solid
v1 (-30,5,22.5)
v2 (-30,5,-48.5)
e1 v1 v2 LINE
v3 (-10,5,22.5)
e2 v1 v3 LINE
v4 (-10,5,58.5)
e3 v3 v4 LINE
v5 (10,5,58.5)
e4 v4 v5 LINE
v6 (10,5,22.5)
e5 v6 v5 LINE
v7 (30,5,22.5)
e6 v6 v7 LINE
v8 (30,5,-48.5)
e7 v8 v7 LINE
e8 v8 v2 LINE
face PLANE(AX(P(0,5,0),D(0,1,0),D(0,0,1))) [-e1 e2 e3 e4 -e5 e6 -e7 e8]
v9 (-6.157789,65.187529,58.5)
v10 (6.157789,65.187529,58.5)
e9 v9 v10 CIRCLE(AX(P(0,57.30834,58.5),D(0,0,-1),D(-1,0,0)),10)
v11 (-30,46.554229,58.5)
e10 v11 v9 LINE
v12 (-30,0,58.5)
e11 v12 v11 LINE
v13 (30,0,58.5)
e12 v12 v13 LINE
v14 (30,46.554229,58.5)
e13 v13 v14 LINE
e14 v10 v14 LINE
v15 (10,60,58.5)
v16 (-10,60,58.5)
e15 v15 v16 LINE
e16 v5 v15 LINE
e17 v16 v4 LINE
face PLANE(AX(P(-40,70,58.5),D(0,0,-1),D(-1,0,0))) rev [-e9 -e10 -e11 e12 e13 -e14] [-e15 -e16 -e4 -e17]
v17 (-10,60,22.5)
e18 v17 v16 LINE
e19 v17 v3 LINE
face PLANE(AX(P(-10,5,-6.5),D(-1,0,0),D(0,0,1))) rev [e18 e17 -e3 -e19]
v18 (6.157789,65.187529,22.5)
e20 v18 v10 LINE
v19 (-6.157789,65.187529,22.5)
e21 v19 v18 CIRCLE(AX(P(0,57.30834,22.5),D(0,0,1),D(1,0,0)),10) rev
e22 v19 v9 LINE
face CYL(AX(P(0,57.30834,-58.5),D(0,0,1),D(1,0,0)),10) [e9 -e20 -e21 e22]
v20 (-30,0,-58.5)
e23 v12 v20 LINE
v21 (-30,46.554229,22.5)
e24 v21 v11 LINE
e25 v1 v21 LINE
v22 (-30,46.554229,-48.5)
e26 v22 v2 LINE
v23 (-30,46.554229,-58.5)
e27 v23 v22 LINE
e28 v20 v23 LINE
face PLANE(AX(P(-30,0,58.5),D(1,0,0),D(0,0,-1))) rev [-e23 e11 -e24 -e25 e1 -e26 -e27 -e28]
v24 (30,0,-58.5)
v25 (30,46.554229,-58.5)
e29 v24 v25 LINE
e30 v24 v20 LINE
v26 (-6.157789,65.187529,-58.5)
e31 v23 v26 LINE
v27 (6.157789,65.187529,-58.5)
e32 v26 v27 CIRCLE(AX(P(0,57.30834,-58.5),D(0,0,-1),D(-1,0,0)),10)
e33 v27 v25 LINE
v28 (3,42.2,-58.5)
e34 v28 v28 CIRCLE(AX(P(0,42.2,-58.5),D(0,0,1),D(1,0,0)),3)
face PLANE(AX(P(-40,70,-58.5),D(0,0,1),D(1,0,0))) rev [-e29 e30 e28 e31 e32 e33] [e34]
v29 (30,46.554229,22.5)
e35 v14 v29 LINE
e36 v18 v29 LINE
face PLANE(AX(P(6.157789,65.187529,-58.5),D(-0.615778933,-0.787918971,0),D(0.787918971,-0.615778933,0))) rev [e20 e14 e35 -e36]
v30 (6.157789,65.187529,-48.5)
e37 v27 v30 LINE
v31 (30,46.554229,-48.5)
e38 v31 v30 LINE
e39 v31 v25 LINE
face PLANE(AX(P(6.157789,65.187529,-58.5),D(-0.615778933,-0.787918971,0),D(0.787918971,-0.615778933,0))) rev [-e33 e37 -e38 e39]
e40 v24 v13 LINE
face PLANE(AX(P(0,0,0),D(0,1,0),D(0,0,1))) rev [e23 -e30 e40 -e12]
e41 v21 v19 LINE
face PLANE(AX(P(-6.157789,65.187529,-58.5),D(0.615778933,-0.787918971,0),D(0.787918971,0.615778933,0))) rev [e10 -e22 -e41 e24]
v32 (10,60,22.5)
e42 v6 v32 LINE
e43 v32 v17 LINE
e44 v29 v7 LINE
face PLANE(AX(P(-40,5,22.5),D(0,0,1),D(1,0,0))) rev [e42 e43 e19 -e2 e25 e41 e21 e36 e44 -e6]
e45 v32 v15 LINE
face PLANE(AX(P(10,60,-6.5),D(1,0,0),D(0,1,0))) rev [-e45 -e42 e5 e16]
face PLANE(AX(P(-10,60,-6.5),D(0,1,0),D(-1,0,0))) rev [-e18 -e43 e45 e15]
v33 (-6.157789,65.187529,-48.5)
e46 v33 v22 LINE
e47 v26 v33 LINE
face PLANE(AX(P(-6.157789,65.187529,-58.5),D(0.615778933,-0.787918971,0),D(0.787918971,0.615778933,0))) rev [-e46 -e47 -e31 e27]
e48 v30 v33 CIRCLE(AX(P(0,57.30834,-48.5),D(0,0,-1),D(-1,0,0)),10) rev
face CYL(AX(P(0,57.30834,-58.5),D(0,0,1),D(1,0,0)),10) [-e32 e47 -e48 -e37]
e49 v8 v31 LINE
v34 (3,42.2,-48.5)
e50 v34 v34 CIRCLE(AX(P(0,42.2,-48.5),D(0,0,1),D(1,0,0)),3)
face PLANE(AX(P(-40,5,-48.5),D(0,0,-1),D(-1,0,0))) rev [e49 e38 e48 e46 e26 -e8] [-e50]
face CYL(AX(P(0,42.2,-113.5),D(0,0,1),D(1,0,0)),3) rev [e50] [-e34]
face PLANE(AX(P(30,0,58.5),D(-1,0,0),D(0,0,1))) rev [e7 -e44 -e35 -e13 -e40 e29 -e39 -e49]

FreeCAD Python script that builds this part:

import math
import FreeCAD as App
import Part
import Sketcher

V = App.Vector

doc = App.newDocument("Part")
body = doc.addObject("PartDesign::Body", "Body")

# Sketch on XZ plane
sketch1 = body.newObject("Sketcher::SketchObject", "Sketch")
sketch1.AttachmentSupport = (doc.getObject("XZ_Plane"), [""])
sketch1.MapMode = "FlatFace"
sketch1.addGeometry([
    Part.LineSegment(V(-40, -58, 0), V(-40, 58, 0)),
    Part.LineSegment(V(-40, 58, 0), V(40, 58, 0)),
    Part.LineSegment(V(40, 58, 0), V(40, -58, 0)),
    Part.LineSegment(V(40, -58, 0), V(-40, -58, 0)),
], False)
sketch1.addConstraint([
    Sketcher.Constraint("Coincident", 0, 2, 1, 1),
    Sketcher.Constraint("Coincident", 1, 2, 2, 1),
    Sketcher.Constraint("Coincident", 2, 2, 3, 1),
    Sketcher.Constraint("Coincident", 3, 2, 0, 1),
    Sketcher.Constraint("Vertical", 0),
    Sketcher.Constraint("Horizontal", 1),
    Sketcher.Constraint("Vertical", 2),
    Sketcher.Constraint("Horizontal", 3),
    Sketcher.Constraint("Symmetric", 0, 2, 2, 2, -1, 1),
    Sketcher.Constraint("DistanceX", 1, 1, 1, 2, 80.0),
    Sketcher.Constraint("DistanceY", 0, 1, 0, 2, 117.0),
])
pad1 = body.newObject("PartDesign::Pad", "Pad")
pad1.Profile = sketch1
pad1.Length = 70
pad1.Reversed = True

# Sketch on XZ plane
sketch2 = body.newObject("Sketcher::SketchObject", "Sketch001")
sketch2.AttachmentSupport = (doc.getObject("XZ_Plane"), [""])
sketch2.MapMode = "FlatFace"
sketch2.AttachmentOffset = App.Placement(V(0, 0, -70), App.Rotation())
sketch2.addGeometry([
    Part.LineSegment(V(-40, -48, 0), V(-40, 22, 0)),
    Part.LineSegment(V(-40, 22, 0), V(40, 22, 0)),
    Part.LineSegment(V(40, 22, 0), V(40, -48, 0)),
    Part.LineSegment(V(40, -48, 0), V(-40, -48, 0)),
], False)
sketch2.addConstraint([
    Sketcher.Constraint("Coincident", 0, 2, 1, 1),
    Sketcher.Constraint("Coincident", 1, 2, 2, 1),
    Sketcher.Constraint("Coincident", 2, 2, 3, 1),
    Sketcher.Constraint("Coincident", 3, 2, 0, 1),
    Sketcher.Constraint("Vertical", 0),
    Sketcher.Constraint("Horizontal", 1),
    Sketcher.Constraint("Vertical", 2),
    Sketcher.Constraint("Horizontal", 3),
    Sketcher.Constraint("DistanceX", 1, 1, 1, 2, 80.0),
    Sketcher.Constraint("DistanceY", 0, 1, 0, 2, 71.0),
    Sketcher.Constraint("DistanceX", 0, 2, -1, 1, 40.0),
    Sketcher.Constraint("DistanceY", -1, 1, 0, 2, 22.5),
])
pocket1 = body.newObject("PartDesign::Pocket", "Pocket")
pocket1.Profile = sketch2
pocket1.Length = 65
pocket1.Reversed = True

# Sketch on XY plane
sketch3 = body.newObject("Sketcher::SketchObject", "Sketch002")
sketch3.AttachmentSupport = (doc.getObject("XY_Plane"), [""])
sketch3.MapMode = "FlatFace"
sketch3.AttachmentOffset = App.Placement(V(0, 0, 58.5), App.Rotation())
sketch3.addGeometry([
    Part.LineSegment(V(-10, 60, 0), V(-10, 5, 0)),
    Part.LineSegment(V(-10, 5, 0), V(10, 5, 0)),
    Part.LineSegment(V(10, 5, 0), V(10, 60, 0)),
    Part.LineSegment(V(10, 60, 0), V(-10, 60, 0)),
], False)
sketch3.addConstraint([
    Sketcher.Constraint("Coincident", 0, 2, 1, 1),
    Sketcher.Constraint("Coincident", 1, 2, 2, 1),
    Sketcher.Constraint("Coincident", 2, 2, 3, 1),
    Sketcher.Constraint("Coincident", 3, 2, 0, 1),
    Sketcher.Constraint("Vertical", 0),
    Sketcher.Constraint("Horizontal", 1),
    Sketcher.Constraint("Vertical", 2),
    Sketcher.Constraint("Horizontal", 3),
    Sketcher.Constraint("DistanceX", 1, 1, 1, 2, 20.0),
    Sketcher.Constraint("DistanceY", 0, 2, 0, 1, 55.0),
    Sketcher.Constraint("DistanceX", 0, 2, -1, 1, 10.0),
    Sketcher.Constraint("DistanceY", -1, 1, 0, 2, 5.0),
])
pocket2 = body.newObject("PartDesign::Pocket", "Pocket001")
pocket2.Profile = sketch3
pocket2.Length = 65

# Sketch on XY plane
sketch4 = body.newObject("Sketcher::SketchObject", "Sketch003")
sketch4.AttachmentSupport = (doc.getObject("XY_Plane"), [""])
sketch4.MapMode = "FlatFace"
sketch4.AttachmentOffset = App.Placement(V(0, 0, 58.5), App.Rotation())
sketch4.addGeometry([
    Part.LineSegment(V(-40, 39, 0), V(-6, 65, 0)),  # 0
    Part.ArcOfCircle(Part.Circle(V(0, 57, 0), V(0, 0, 1), 10), math.radians(52), math.radians(128)),  # 1
    Part.LineSegment(V(6, 65, 0), V(40, 39, 0)),  # 2
    Part.LineSegment(V(40, 39, 0), V(40, 70, 0)),  # 3
    Part.LineSegment(V(40, 70, 0), V(-40, 70, 0)),  # 4
    Part.LineSegment(V(-40, 70, 0), V(-40, 39, 0)),  # 5
], False)
sketch4.addConstraint([
    Sketcher.Constraint("Tangent", 0, 2, 1, 2),
    Sketcher.Constraint("Tangent", 1, 1, 2, 1),
    Sketcher.Constraint("Coincident", 2, 2, 3, 1),
    Sketcher.Constraint("Coincident", 3, 2, 4, 1),
    Sketcher.Constraint("Coincident", 4, 2, 5, 1),
    Sketcher.Constraint("Coincident", 5, 2, 0, 1),
    Sketcher.Constraint("Vertical", 3),
    Sketcher.Constraint("Horizontal", 4),
    Sketcher.Constraint("Vertical", 5),
    Sketcher.Constraint("Symmetric", 0, 2, 1, 1, -2),
    Sketcher.Constraint("Horizontal", 2, 2, 5, 2),
    Sketcher.Constraint("Radius", 1, 10.0),
    Sketcher.Constraint("DistanceX", 4, 2, 4, 1, 80.0),
    Sketcher.Constraint("DistanceY", -1, 1, 3, 2, 70.0),
    Sketcher.Constraint("DistanceY", 3, 1, 3, 2, 31.261028),
    Sketcher.Constraint("DistanceY", -1, 1, 1, 3, 57.30834),
])
pocket3 = body.newObject("PartDesign::Pocket", "Pocket002")
pocket3.Profile = sketch4
pocket3.Type = "ThroughAll"

# Sketch on XY plane
sketch5 = body.newObject("Sketcher::SketchObject", "Sketch004")
sketch5.AttachmentSupport = (doc.getObject("XY_Plane"), [""])
sketch5.MapMode = "FlatFace"
sketch5.AttachmentOffset = App.Placement(V(0, 0, -48.5), App.Rotation())
sketch5.addGeometry(Part.Circle(V(0, 42.2, 0), V(0, 0, 1), 3), False)
sketch5.addConstraint([
    Sketcher.Constraint("PointOnObject", 0, 3, -2),
    Sketcher.Constraint("Diameter", 0, 6.0),
    Sketcher.Constraint("DistanceY", -1, 1, 0, 3, 42.2),
])
pocket4 = body.newObject("PartDesign::Pocket", "Pocket003")
pocket4.Profile = sketch5
pocket4.Length = 65

# Sketch on XZ plane
sketch6 = body.newObject("Sketcher::SketchObject", "Sketch005")
sketch6.AttachmentSupport = (doc.getObject("XZ_Plane"), [""])
sketch6.MapMode = "FlatFace"
sketch6.AttachmentOffset = App.Placement(V(0, 0, -67.3), App.Rotation())
sketch6.addGeometry([
    Part.LineSegment(V(-40, -58, 0), V(-40, 58, 0)),  # 0
    Part.LineSegment(V(-40, 58, 0), V(-30, 58, 0)),  # 1
    Part.LineSegment(V(-30, 58, 0), V(-30, -58, 0)),  # 2
    Part.LineSegment(V(-30, -58, 0), V(-40, -58, 0)),  # 3
    Part.LineSegment(V(30, -58, 0), V(30, 58, 0)),  # 4
    Part.LineSegment(V(30, 58, 0), V(40, 58, 0)),  # 5
    Part.LineSegment(V(40, 58, 0), V(40, -58, 0)),  # 6
    Part.LineSegment(V(40, -58, 0), V(30, -58, 0)),  # 7
], False)
sketch6.addConstraint([
    Sketcher.Constraint("Coincident", 0, 2, 1, 1),
    Sketcher.Constraint("Coincident", 1, 2, 2, 1),
    Sketcher.Constraint("Coincident", 2, 2, 3, 1),
    Sketcher.Constraint("Coincident", 3, 2, 0, 1),
    Sketcher.Constraint("Coincident", 4, 2, 5, 1),
    Sketcher.Constraint("Coincident", 5, 2, 6, 1),
    Sketcher.Constraint("Coincident", 6, 2, 7, 1),
    Sketcher.Constraint("Coincident", 7, 2, 4, 1),
    Sketcher.Constraint("Vertical", 0),
    Sketcher.Constraint("Horizontal", 1),
    Sketcher.Constraint("Vertical", 2),
    Sketcher.Constraint("Horizontal", 3),
    Sketcher.Constraint("Vertical", 4),
    Sketcher.Constraint("Horizontal", 5),
    Sketcher.Constraint("Vertical", 6),
    Sketcher.Constraint("Horizontal", 7),
    Sketcher.Constraint("Symmetric", 2, 2, 4, 2, -1, 1),
    Sketcher.Constraint("Symmetric", 0, 2, 6, 2, -1, 1),
    Sketcher.Constraint("Horizontal", 1, 2, 4, 2),
    Sketcher.Constraint("DistanceX", 1, 1, 1, 2, 10.0),
    Sketcher.Constraint("DistanceY", 0, 1, 0, 2, 117.0),
    Sketcher.Constraint("DistanceX", 0, 2, -1, 1, 40.0),
])
pocket5 = body.newObject("PartDesign::Pocket", "Pocket004")
pocket5.Profile = sketch6
pocket5.Type = "ThroughAll"
pocket5.Reversed = True

doc.recompute()
